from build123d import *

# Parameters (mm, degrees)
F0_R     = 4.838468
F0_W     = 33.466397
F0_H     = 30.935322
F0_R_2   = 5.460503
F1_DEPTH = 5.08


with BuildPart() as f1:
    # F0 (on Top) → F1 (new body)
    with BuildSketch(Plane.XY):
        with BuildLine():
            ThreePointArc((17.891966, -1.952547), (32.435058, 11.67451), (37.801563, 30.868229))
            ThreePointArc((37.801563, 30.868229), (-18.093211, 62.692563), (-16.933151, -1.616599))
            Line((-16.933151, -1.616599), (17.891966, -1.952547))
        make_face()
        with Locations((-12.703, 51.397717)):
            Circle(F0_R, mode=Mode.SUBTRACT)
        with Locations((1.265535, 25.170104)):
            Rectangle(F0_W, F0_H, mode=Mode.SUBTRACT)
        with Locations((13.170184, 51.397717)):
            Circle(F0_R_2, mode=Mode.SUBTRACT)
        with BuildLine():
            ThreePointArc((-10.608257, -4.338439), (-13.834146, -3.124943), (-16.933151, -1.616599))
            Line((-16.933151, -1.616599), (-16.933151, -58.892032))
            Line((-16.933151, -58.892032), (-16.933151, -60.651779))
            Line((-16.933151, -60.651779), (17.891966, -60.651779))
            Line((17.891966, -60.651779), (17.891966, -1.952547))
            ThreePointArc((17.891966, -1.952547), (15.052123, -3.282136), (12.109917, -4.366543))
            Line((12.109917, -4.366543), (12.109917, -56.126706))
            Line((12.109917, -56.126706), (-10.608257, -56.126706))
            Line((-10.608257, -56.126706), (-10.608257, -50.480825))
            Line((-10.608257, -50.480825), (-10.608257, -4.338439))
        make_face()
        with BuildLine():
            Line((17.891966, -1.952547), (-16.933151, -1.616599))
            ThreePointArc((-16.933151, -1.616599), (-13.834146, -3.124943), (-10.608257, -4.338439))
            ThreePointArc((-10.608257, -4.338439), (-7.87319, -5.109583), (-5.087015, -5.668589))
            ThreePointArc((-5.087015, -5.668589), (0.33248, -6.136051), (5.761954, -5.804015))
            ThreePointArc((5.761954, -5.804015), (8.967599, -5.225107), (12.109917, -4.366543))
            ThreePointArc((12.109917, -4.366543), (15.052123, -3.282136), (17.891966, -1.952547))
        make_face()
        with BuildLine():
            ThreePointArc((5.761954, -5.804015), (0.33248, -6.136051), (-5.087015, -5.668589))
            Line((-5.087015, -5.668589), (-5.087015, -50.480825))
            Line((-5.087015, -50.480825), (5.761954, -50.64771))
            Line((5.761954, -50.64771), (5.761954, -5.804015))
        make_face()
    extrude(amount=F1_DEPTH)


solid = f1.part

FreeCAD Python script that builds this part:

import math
import FreeCAD as App
import Part
import Sketcher

V = App.Vector
Q = App.Units.Quantity

doc = App.newDocument("Part")
body = doc.addObject("PartDesign::Body", "Body")

sketch1 = body.newObject("Sketcher::SketchObject", "Sketch")
sketch1.AttachmentSupport = (doc.getObject("XY_Plane"), [""])
sketch1.MapMode = "FlatFace"
sketch1.addGeometry(Part.ArcOfCircle(Part.Circle(V(0.8, 30.9, 0), V(0, 0, 1), 37), math.radians(-62), math.radians(0)), False)
sketch1.addGeometry(Part.ArcOfCircle(Part.Circle(V(0.8, 30.9, 0), V(0, 0, 1), 37), math.radians(0), math.radians(241)), False)
sketch1.addGeometry(Part.LineSegment(V(-16.9, -1.6, 0), V(-16.9, -60.7, 0)), False)
sketch1.addGeometry(Part.LineSegment(V(-16.9, -60.7, 0), V(17.9, -60.7, 0)), False)
sketch1.addGeometry(Part.LineSegment(V(17.9, -60.7, 0), V(17.9, -2, 0)), False)
sketch1.addGeometry(Part.LineSegment(V(18, 9.7, 0), V(-15.5, 9.7, 0)), False)
sketch1.addGeometry(Part.LineSegment(V(-15.5, 9.7, 0), V(-15.5, 40.6, 0)), False)
sketch1.addGeometry(Part.LineSegment(V(-15.5, 40.6, 0), V(18, 40.6, 0)), False)
sketch1.addGeometry(Part.LineSegment(V(18, 40.6, 0), V(18, 9.7, 0)), False)
sketch1.addGeometry(Part.Circle(V(-12.7, 51.4, 0), V(0, 0, 1), 4.8), False)
sketch1.addGeometry(Part.Circle(V(13.2, 51.4, 0), V(0, 0, 1), 5.5), False)
sketch1.addGeometry(Part.ArcOfCircle(Part.Circle(V(0.8, 30.9, 0), V(0, 0, 1), 37), math.radians(-107.95), math.radians(-99.14)), False)
sketch1.addGeometry(Part.LineSegment(V(-5.1, -5.7, 0), V(-5.1, -50.5, 0)), False)
sketch1.addGeometry(Part.LineSegment(V(-5.1, -50.5, 0), V(5.8, -50.6, 0)), False)
sketch1.addGeometry(Part.LineSegment(V(5.8, -50.6, 0), V(5.8, -5.8, 0)), False)
sketch1.addGeometry(Part.ArcOfCircle(Part.Circle(V(0.8, 30.9, 0), V(0, 0, 1), 37), math.radians(-82.29), math.radians(-72.2)), False)
sketch1.addGeometry(Part.LineSegment(V(12.1, -4.4, 0), V(12.1, -56.1, 0)), False)
sketch1.addGeometry(Part.LineSegment(V(12.1, -56.1, 0), V(-10.6, -56.1, 0)), False)
sketch1.addGeometry(Part.LineSegment(V(-10.6, -56.1, 0), V(-10.6, -4.3, 0)), False)
sketch1.addConstraint(Sketcher.Constraint("Tangent", 0, 2, 1, 1))
sketch1.addConstraint(Sketcher.Constraint("Coincident", 1, 2, 2, 1))
sketch1.addConstraint(Sketcher.Constraint("Coincident", 2, 2, 3, 1))
sketch1.addConstraint(Sketcher.Constraint("Coincident", 3, 2, 4, 1))
sketch1.addConstraint(Sketcher.Constraint("Coincident", 4, 2, 0, 1))
sketch1.addConstraint(Sketcher.Constraint("Coincident", 5, 2, 6, 1))
sketch1.addConstraint(Sketcher.Constraint("Coincident", 6, 2, 7, 1))
sketch1.addConstraint(Sketcher.Constraint("Coincident", 7, 2, 8, 1))
sketch1.addConstraint(Sketcher.Constraint("Coincident", 8, 2, 5, 1))
sketch1.addConstraint(Sketcher.Constraint("Coincident", 11, 2, 12, 1))
sketch1.addConstraint(Sketcher.Constraint("Coincident", 12, 2, 13, 1))
sketch1.addConstraint(Sketcher.Constraint("Coincident", 13, 2, 14, 1))
sketch1.addConstraint(Sketcher.Constraint("Coincident", 14, 2, 15, 1))
sketch1.addConstraint(Sketcher.Constraint("Coincident", 15, 2, 16, 1))
sketch1.addConstraint(Sketcher.Constraint("Coincident", 16, 2, 17, 1))
sketch1.addConstraint(Sketcher.Constraint("Coincident", 17, 2, 18, 1))
sketch1.addConstraint(Sketcher.Constraint("Coincident", 18, 2, 11, 1))
sketch1.addConstraint(Sketcher.Constraint("Vertical", 2))
sketch1.addConstraint(Sketcher.Constraint("Horizontal", 3))
sketch1.addConstraint(Sketcher.Constraint("Vertical", 4))
sketch1.addConstraint(Sketcher.Constraint("Horizontal", 5))
sketch1.addConstraint(Sketcher.Constraint("Vertical", 6))
sketch1.addConstraint(Sketcher.Constraint("Horizontal", 7))
sketch1.addConstraint(Sketcher.Constraint("Vertical", 8))
sketch1.addConstraint(Sketcher.Constraint("Vertical", 12))
sketch1.addConstraint(Sketcher.Constraint("Vertical", 14))
sketch1.addConstraint(Sketcher.Constraint("Vertical", 16))
sketch1.addConstraint(Sketcher.Constraint("Horizontal", 17))
sketch1.addConstraint(Sketcher.Constraint("Vertical", 18))
sketch1.addConstraint(Sketcher.Constraint("Equal", 0, 1))
sketch1.addConstraint(Sketcher.Constraint("Horizontal", 9, 3, 10, 3))
sketch1.addConstraint(Sketcher.Constraint("Horizontal", 1, 3, 0, 2))
sketch1.addConstraint(Sketcher.Constraint("DistanceY", 14, 1, 14, 2, Q("1.7654998 in")))
sketch1.addConstraint(Sketcher.Constraint("Radius", 11, Q("37.007219 mm")))
sketch1.addConstraint(Sketcher.Constraint("Diameter", 9, Q("9.676936 mm")))
sketch1.addConstraint(Sketcher.Constraint("Diameter", 10, Q("10.921006 mm")))
sketch1.addConstraint(Sketcher.Constraint("Radius", 0, Q("37.007164 mm")))
sketch1.addConstraint(Sketcher.Constraint("Radius", 15, Q("37.007136 mm")))
sketch1.addConstraint(Sketcher.Constraint("DistanceY", 14, 2, 18, 2, Q("0.0576998 in")))
sketch1.addConstraint(Sketcher.Constraint("DistanceY", 2, 2, 2, 1, Q("59.03518 mm")))
sketch1.addConstraint(Sketcher.Constraint("DistanceY", 4, 1, 4, 2, Q("58.699232 mm")))
sketch1.addConstraint(Sketcher.Constraint("DistanceY", 6, 1, 6, 2, Q("30.935322 mm")))
sketch1.addConstraint(Sketcher.Constraint("DistanceX", -1, 1, 0, 3, Q("0.794399 mm")))
sketch1.addConstraint(Sketcher.Constraint("DistanceX", 9, 3, -1, 1, Q("12.703 mm")))
sketch1.addConstraint(Sketcher.Constraint("DistanceY", 1, 2, -1, 1, Q("1.616599 mm")))
sketch1.addConstraint(Sketcher.Constraint("DistanceY", 1, 2, 15, 3, Q("32.484802 mm")))
sketch1.addConstraint(Sketcher.Constraint("DistanceX", 3, 1, 3, 2, Q("34.825117 mm")))
sketch1.addConstraint(Sketcher.Constraint("DistanceX", 5, 2, 5, 1, Q("33.466397 mm")))
sketch1.addConstraint(Sketcher.Constraint("DistanceX", 17, 2, 17, 1, Q("22.718174 mm")))
sketch1.addConstraint(Sketcher.Constraint("DistanceY", 12, 2, 12, 1, Q("44.812236 mm")))
sketch1.addConstraint(Sketcher.Constraint("DistanceY", 16, 2, 16, 1, Q("51.760163 mm")))
sketch1.addConstraint(Sketcher.Constraint("DistanceY", 18, 1, 18, 2, Q("51.788267 mm")))
sketch1.addConstraint(Sketcher.Constraint("DistanceY", 11, 2, -1, 1, Q("5.668589 mm")))
sketch1.addConstraint(Sketcher.Constraint("DistanceY", 13, 2, -1, 1, Q("50.64771 mm")))
sketch1.addConstraint(Sketcher.Constraint("DistanceY", 1, 3, 9, 3, Q("20.529488 mm")))
sketch1.addConstraint(Sketcher.Constraint("DistanceX", 10, 3, 0, 2, Q("24.631379 mm")))
sketch1.addConstraint(Sketcher.Constraint("DistanceX", 1, 2, 11, 3, Q("17.727569 mm")))
sketch1.addConstraint(Sketcher.Constraint("DistanceX", 15, 3, 3, 2, Q("17.097559 mm")))
sketch1.addConstraint(Sketcher.Constraint("DistanceY", 1, 2, 5, 2, Q("11.319042 mm")))
sketch1.addConstraint(Sketcher.Constraint("DistanceX", 5, 2, 15, 3, Q("16.26207 mm")))
pad1 = body.newObject("PartDesign::Pad", "Pad")
pad1.Profile = sketch1
pad1.Length = Q("0.2 in")

doc.recompute()
